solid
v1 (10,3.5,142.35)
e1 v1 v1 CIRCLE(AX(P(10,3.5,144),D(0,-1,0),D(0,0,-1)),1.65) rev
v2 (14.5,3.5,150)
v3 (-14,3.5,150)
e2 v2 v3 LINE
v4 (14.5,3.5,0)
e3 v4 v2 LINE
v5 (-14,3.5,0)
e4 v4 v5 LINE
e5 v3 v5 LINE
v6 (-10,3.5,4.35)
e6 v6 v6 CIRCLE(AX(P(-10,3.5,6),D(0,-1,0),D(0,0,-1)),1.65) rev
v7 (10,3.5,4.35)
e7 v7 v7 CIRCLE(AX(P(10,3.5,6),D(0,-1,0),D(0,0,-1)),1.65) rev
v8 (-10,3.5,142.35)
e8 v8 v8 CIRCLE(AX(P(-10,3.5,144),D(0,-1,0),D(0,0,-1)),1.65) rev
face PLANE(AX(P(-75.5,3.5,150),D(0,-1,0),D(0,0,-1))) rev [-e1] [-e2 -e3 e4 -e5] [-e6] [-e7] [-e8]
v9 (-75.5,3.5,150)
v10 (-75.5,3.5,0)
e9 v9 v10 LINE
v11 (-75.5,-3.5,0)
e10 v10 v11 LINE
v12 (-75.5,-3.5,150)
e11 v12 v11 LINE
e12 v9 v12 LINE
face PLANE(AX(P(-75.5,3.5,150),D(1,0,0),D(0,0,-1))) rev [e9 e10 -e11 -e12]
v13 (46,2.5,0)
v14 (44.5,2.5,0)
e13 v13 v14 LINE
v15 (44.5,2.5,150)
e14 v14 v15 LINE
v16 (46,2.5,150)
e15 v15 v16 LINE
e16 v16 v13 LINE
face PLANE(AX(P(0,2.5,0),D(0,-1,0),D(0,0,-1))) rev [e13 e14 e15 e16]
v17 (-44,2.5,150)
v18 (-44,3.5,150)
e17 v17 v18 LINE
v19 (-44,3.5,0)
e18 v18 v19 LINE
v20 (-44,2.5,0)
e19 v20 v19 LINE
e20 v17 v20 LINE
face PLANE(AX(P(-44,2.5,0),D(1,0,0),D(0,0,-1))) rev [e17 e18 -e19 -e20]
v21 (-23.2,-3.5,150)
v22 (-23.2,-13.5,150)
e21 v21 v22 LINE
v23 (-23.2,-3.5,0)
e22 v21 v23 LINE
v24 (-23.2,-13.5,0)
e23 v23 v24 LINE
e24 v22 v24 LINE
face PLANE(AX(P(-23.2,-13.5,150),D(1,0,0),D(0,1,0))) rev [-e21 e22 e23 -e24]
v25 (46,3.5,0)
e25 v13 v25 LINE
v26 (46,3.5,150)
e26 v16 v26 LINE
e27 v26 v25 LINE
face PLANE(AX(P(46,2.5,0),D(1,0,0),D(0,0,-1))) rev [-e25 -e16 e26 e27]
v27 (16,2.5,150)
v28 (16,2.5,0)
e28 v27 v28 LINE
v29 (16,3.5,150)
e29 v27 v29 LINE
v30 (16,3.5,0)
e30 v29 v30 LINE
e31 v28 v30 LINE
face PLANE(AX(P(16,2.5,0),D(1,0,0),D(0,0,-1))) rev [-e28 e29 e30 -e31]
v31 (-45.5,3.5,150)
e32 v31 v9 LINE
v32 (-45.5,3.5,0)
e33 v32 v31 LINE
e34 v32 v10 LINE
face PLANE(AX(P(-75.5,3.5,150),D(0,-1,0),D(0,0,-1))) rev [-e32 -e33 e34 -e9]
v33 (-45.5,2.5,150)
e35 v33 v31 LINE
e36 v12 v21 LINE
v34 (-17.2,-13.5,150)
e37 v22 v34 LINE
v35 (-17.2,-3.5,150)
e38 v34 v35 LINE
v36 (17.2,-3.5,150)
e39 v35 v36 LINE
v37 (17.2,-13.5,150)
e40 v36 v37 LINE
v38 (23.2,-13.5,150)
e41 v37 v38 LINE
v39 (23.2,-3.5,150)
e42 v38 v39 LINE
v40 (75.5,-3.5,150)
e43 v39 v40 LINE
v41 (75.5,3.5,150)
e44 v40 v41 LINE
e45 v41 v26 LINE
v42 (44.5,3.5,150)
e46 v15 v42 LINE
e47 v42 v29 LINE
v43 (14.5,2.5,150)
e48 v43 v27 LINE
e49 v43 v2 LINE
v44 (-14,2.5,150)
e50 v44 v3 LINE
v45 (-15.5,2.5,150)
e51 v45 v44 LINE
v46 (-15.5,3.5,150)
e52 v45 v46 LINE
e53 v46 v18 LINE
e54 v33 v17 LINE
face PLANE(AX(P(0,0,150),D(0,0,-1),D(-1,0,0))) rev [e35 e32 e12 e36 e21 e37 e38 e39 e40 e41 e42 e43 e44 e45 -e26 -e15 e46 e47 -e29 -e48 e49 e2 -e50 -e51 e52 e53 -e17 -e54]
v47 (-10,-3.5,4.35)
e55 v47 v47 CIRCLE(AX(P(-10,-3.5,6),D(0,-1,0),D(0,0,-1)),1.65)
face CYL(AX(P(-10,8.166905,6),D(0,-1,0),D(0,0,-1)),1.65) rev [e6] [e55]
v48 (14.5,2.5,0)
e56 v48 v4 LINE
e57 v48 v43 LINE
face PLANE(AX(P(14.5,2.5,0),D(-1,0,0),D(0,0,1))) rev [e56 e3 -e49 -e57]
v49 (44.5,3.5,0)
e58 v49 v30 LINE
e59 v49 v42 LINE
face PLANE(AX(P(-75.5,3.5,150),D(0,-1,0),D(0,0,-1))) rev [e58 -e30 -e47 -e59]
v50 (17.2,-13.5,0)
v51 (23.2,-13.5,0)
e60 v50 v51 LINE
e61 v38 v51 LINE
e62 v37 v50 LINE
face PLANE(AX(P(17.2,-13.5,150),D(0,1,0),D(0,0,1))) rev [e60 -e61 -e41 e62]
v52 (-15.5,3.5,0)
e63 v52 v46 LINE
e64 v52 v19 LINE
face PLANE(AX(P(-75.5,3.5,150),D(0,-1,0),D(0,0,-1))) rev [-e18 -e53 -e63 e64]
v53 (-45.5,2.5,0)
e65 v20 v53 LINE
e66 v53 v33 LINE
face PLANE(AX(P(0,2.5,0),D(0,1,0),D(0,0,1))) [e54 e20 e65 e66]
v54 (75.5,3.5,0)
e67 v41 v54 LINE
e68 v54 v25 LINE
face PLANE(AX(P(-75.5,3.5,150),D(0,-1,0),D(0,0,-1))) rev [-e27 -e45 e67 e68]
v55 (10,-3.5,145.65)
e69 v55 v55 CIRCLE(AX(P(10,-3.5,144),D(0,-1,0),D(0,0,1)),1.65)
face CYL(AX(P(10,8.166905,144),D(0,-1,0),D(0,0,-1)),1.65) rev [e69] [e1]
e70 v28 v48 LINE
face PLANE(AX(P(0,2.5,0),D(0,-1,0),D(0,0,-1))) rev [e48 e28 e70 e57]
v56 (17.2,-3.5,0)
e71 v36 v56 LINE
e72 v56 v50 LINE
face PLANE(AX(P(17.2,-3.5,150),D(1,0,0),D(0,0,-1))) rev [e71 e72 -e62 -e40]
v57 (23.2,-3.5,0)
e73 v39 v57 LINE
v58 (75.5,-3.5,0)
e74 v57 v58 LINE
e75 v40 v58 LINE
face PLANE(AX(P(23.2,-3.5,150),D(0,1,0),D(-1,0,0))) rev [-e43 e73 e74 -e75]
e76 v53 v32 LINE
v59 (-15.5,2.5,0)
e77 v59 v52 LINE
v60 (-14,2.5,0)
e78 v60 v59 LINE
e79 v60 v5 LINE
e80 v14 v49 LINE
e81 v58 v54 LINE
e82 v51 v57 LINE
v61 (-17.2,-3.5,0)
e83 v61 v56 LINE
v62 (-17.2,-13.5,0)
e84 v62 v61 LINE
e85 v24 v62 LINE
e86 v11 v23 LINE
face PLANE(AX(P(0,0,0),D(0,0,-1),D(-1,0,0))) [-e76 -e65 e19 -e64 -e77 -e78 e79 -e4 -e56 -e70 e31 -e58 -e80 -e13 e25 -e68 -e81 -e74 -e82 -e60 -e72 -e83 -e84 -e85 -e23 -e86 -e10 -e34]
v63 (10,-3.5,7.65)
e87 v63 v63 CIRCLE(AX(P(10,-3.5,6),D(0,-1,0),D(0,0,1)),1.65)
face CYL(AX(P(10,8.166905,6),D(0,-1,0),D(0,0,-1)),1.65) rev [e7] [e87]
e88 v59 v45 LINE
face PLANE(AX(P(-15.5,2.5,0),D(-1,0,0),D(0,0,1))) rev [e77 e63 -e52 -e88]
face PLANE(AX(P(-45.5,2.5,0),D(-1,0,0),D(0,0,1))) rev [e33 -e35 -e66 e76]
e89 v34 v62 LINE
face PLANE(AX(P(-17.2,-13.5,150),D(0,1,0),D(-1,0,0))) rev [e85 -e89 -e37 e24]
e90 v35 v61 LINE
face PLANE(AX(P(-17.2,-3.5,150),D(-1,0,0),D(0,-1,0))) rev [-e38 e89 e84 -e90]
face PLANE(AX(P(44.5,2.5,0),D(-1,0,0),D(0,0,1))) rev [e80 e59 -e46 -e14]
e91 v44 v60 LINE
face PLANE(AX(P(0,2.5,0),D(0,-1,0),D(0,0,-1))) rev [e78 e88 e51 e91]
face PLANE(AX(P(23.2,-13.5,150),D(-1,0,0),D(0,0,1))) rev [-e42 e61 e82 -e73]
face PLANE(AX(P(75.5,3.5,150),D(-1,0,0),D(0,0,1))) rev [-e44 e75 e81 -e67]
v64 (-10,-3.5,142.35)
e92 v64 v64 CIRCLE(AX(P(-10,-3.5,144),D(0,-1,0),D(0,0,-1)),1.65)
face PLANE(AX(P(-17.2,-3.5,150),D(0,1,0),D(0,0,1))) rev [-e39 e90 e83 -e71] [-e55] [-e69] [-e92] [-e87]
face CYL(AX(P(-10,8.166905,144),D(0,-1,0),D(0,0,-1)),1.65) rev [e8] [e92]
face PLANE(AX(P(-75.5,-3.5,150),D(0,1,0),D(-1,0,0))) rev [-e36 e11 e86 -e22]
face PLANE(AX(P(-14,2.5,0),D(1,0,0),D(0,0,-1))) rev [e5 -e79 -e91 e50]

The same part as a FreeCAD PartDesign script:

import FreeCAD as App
import Part
import Sketcher
from FreeCAD import Vector
Q = App.Units.Quantity


def add_polygon(sketch, points):
    """Adds a closed chain of lines whose ends are joined by coincident constraints."""
    first, n = sketch.GeometryCount, len(points)
    for a, b in zip(points, points[1:] + points[:1]):
        sketch.addGeometry(Part.LineSegment(App.Vector(*a, 0), App.Vector(*b, 0)), False)
    for i in range(n):
        sketch.addConstraint(Sketcher.Constraint("Coincident", first + i, 2, first + (i + 1) % n, 1))

doc = App.newDocument("Part")
body = doc.addObject("PartDesign::Body", "Body")

# Sketch on XY plane
sketch1 = body.newObject("Sketcher::SketchObject", "Sketch")
sketch1.AttachmentSupport = (doc.getObject("XY_Plane"), [""])
sketch1.MapMode = "FlatFace"
add_polygon(sketch1, [(75.5, 3.5), (-75.5, 3.5), (-75.5, -3.5), (-23.2, -3.5), (-23.2, -13.5), (-17.2, -13.5), (-17.2, -3.5), (17.2, -3.5), (17.2, -13.5), (23.2, -13.5), (23.2, -3.5), (75.5, -3.5)])  # lines 0-11
sketch1.addConstraint([
    Sketcher.Constraint("Horizontal", 0),
    Sketcher.Constraint("Vertical", 1),
    Sketcher.Constraint("Horizontal", 2),
    Sketcher.Constraint("Vertical", 3),
    Sketcher.Constraint("Horizontal", 4),
    Sketcher.Constraint("Vertical", 5),
    Sketcher.Constraint("Horizontal", 6),
    Sketcher.Constraint("Vertical", 7),
    Sketcher.Constraint("Horizontal", 8),
    Sketcher.Constraint("Vertical", 9),
    Sketcher.Constraint("Horizontal", 10),
    Sketcher.Constraint("Vertical", 11),
    Sketcher.Constraint("Symmetric", 0, 2, 10, 2, -1, 1),
    Sketcher.Constraint("Symmetric", 4, 2, 7, 2, -2),
    Sketcher.Constraint("Symmetric", 2, 2, 9, 2, -2),
    Sketcher.Constraint("Horizontal", 2, 2, 5, 2),
    Sketcher.Constraint("DistanceX", 0, 2, 0, 1, Q("151 mm")),
    Sketcher.Constraint("DistanceX", 4, 1, 4, 2, Q("6 mm")),
    Sketcher.Constraint("DistanceY", 1, 2, 1, 1, Q("7 mm")),
    Sketcher.Constraint("DistanceY", 3, 2, 3, 1, Q("10 mm")),
    Sketcher.Constraint("DistanceX", 2, 1, 2, 2, Q("52.3 mm")),
])
pad1 = body.newObject("PartDesign::Pad", "Pad")
pad1.Profile = sketch1
pad1.Length = 150

# Sketch on XZ plane
sketch2 = body.newObject("Sketcher::SketchObject", "Sketch001")
sketch2.AttachmentSupport = (doc.getObject("XZ_Plane"), [""])
sketch2.MapMode = "FlatFace"
sketch2.AttachmentOffset = App.Placement(Vector(0, 0, 3.5), App.Rotation())
sketch2.addGeometry([
    Part.Circle(Vector(-10, 6, 0), Vector(0, 0, 1), 1.65),
    Part.Circle(Vector(10, 6, 0), Vector(0, 0, 1), 1.65),
    Part.Circle(Vector(-10, 144, 0), Vector(0, 0, 1), 1.65),
    Part.Circle(Vector(10, 144, 0), Vector(0, 0, 1), 1.65),
], False)
sketch2.addConstraint([
    Sketcher.Constraint("Equal", 0, 1),
    Sketcher.Constraint("Equal", 1, 2),
    Sketcher.Constraint("Equal", 2, 3),
    Sketcher.Constraint("Symmetric", 0, 3, 1, 3, -2),
    Sketcher.Constraint("Symmetric", 2, 3, 3, 3, -2),
    Sketcher.Constraint("Vertical", 0, 3, 2, 3),
    Sketcher.Constraint("Diameter", 0, Q("3.3 mm")),
    Sketcher.Constraint("DistanceX", 0, 3, -1, 1, Q("10 mm")),
    Sketcher.Constraint("DistanceY", -1, 1, 0, 3, Q("6 mm")),
    Sketcher.Constraint("DistanceY", -1, 1, 2, 3, Q("144 mm")),
])
pocket1 = body.newObject("PartDesign::Pocket", "Pocket")
pocket1.Profile = sketch2
pocket1.Length = 7

# Sketch on XZ plane
sketch3 = body.newObject("Sketcher::SketchObject", "Sketch002")
sketch3.AttachmentSupport = (doc.getObject("XZ_Plane"), [""])
sketch3.MapMode = "FlatFace"
sketch3.AttachmentOffset = App.Placement(Vector(0, 0, -3.5), App.Rotation())
add_polygon(sketch3, [(-45.5, 0), (-45.5, 150), (-44, 150), (-44, 0)])  # lines 0-3
add_polygon(sketch3, [(-15.5, 0), (-15.5, 150), (-14, 150), (-14, 0)])  # lines 4-7
add_polygon(sketch3, [(14.5, 0), (14.5, 150), (16, 150), (16, 0)])  # lines 8-11
add_polygon(sketch3, [(44.5, 0), (44.5, 150), (46, 150), (46, 0)])  # lines 12-15
sketch3.addConstraint([
    Sketcher.Constraint("Vertical", 0),
    Sketcher.Constraint("Horizontal", 1),
    Sketcher.Constraint("Vertical", 2),
    Sketcher.Constraint("Horizontal", 3),
    Sketcher.Constraint("Vertical", 4),
    Sketcher.Constraint("Horizontal", 5),
    Sketcher.Constraint("Vertical", 6),
    Sketcher.Constraint("Horizontal", 7),
    Sketcher.Constraint("Vertical", 8),
    Sketcher.Constraint("Horizontal", 9),
    Sketcher.Constraint("Vertical", 10),
    Sketcher.Constraint("Horizontal", 11),
    Sketcher.Constraint("Vertical", 12),
    Sketcher.Constraint("Horizontal", 13),
    Sketcher.Constraint("Vertical", 14),
    Sketcher.Constraint("Horizontal", 15),
    Sketcher.Constraint("PointOnObject", 2, 2, -1),
    Sketcher.Constraint("PointOnObject", 6, 2, -1),
    Sketcher.Constraint("PointOnObject", 10, 2, -1),
    Sketcher.Constraint("PointOnObject", 14, 2, -1),
    Sketcher.Constraint("Horizontal", 1, 2, 4, 2),
    Sketcher.Constraint("Horizontal", 5, 2, 8, 2),
    Sketcher.Constraint("Horizontal", 9, 2, 12, 2),
    Sketcher.Constraint("Equal", 3, 5),
    Sketcher.Constraint("Equal", 7, 9),
    Sketcher.Constraint("Equal", 11, 13),
    Sketcher.Constraint("DistanceY", 0, 1, 0, 2, Q("150 mm")),
    Sketcher.Constraint("DistanceX", 1, 1, 1, 2, Q("1.5 mm")),
    Sketcher.Constraint("DistanceX", 1, 2, -1, 1, Q("44 mm")),
    Sketcher.Constraint("DistanceX", 5, 2, -1, 1, Q("14 mm")),
    Sketcher.Constraint("DistanceX", -1, 1, 9, 2, Q("16 mm")),
    Sketcher.Constraint("DistanceX", -1, 1, 13, 2, Q("46 mm")),
])
pocket2 = body.newObject("PartDesign::Pocket", "Pocket001")
pocket2.Profile = sketch3
pocket2.Length = 1
pocket2.Reversed = True

doc.recompute()
